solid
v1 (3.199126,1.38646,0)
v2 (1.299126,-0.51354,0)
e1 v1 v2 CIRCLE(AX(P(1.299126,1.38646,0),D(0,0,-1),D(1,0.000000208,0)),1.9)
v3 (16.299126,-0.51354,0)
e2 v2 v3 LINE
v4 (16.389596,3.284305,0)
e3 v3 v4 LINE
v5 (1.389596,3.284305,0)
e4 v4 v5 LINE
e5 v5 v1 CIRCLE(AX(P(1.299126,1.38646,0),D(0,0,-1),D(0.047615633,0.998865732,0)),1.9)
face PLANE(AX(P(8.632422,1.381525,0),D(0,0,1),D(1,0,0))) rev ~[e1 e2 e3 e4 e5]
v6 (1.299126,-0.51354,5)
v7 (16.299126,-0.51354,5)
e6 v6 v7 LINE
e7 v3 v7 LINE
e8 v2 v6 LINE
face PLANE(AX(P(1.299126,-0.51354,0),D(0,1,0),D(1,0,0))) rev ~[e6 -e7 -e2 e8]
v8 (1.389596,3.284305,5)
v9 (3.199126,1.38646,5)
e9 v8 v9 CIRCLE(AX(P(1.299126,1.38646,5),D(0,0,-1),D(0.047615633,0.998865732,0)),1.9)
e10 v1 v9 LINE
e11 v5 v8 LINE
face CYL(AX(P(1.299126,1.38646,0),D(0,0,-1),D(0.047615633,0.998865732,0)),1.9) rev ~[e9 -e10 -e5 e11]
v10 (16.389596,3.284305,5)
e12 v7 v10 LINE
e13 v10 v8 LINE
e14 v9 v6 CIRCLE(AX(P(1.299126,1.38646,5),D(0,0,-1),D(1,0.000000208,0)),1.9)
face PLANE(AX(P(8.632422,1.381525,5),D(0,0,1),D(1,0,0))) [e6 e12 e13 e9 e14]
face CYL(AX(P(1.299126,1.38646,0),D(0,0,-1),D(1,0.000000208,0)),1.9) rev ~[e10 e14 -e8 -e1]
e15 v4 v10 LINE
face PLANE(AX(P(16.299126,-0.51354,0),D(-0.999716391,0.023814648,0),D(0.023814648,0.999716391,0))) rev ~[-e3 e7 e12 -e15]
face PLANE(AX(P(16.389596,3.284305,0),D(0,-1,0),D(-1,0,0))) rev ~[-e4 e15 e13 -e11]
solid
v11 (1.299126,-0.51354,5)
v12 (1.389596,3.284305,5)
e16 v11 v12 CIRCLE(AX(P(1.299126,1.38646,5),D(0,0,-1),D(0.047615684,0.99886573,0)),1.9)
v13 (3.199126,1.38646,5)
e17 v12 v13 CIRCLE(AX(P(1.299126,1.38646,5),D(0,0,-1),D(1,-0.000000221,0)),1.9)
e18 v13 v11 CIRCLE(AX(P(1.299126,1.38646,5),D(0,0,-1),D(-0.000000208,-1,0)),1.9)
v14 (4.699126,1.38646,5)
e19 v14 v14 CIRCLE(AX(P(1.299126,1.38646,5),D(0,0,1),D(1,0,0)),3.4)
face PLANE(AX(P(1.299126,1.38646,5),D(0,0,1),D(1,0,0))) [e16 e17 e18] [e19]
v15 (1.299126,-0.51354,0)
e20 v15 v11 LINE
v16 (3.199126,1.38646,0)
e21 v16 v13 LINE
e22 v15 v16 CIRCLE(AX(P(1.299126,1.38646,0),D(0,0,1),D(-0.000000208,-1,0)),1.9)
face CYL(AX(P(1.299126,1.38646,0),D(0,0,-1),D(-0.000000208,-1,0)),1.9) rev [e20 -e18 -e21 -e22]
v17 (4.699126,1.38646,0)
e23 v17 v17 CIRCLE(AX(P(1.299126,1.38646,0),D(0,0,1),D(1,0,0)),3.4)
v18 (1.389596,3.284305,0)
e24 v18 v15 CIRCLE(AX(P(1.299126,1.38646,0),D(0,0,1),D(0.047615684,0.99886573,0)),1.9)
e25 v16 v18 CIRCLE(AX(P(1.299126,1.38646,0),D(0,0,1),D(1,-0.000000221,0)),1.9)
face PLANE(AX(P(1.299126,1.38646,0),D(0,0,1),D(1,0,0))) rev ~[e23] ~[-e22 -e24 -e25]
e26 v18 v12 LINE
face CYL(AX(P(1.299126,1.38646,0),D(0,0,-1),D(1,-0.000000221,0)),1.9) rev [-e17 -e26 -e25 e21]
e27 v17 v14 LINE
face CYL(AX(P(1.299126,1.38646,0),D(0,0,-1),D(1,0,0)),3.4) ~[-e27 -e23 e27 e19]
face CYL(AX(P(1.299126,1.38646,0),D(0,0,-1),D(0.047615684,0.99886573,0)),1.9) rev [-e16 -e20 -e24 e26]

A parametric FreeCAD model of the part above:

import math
import FreeCAD as App
import Part
import Sketcher

V = App.Vector

doc = App.newDocument("Part")
body = doc.addObject("PartDesign::Body", "Body")

sketch1 = body.newObject("Sketcher::SketchObject", "Sketch")
sketch1.AttachmentSupport = (doc.getObject("XY_Plane"), [""])
sketch1.MapMode = "FlatFace"
sketch1.addGeometry(Part.Circle(V(1.3, 1.4, 0), V(0, 0, 1), 3.4), False)
sketch1.addConstraint(Sketcher.Constraint("Diameter", 0, 6.8))
sketch1.addConstraint(Sketcher.Constraint("DistanceY", -1, 1, 0, 3, 1.38646))
sketch1.addConstraint(Sketcher.Constraint("DistanceX", -1, 1, 0, 3, 1.299126))
pad1 = body.newObject("PartDesign::Pad", "Pad")
pad1.Profile = sketch1
pad1.Length = 5

sketch2 = body.newObject("Sketcher::SketchObject", "Sketch001")
sketch2.AttachmentSupport = (doc.getObject("XY_Plane"), [""])
sketch2.MapMode = "FlatFace"
sketch2.addGeometry(Part.ArcOfCircle(Part.Circle(V(1.3, 1.4, 0), V(0, 0, 1), 1.9), math.radians(-90), math.radians(0)), False)
sketch2.addGeometry(Part.ArcOfCircle(Part.Circle(V(1.3, 1.4, 0), V(0, 0, 1), 1.9), math.radians(0), math.radians(87)), False)
sketch2.addGeometry(Part.ArcOfCircle(Part.Circle(V(1.3, 1.4, 0), V(0, 0, 1), 1.9), math.radians(87), math.radians(270)), False)
sketch2.addConstraint(Sketcher.Constraint("Tangent", 0, 2, 1, 1))
sketch2.addConstraint(Sketcher.Constraint("Tangent", 1, 2, 2, 1))
sketch2.addConstraint(Sketcher.Constraint("Tangent", 2, 2, 0, 1))
sketch2.addConstraint(Sketcher.Constraint("Horizontal", 2, 3, 0, 2))
sketch2.addConstraint(Sketcher.Constraint("Vertical", 1, 3, 2, 2))
sketch2.addConstraint(Sketcher.Constraint("Radius", 0, 1.9))
sketch2.addConstraint(Sketcher.Constraint("DistanceY", -1, 1, 0, 3, 1.38646))
sketch2.addConstraint(Sketcher.Constraint("DistanceX", 1, 3, 1, 2, 0.09047))
sketch2.addConstraint(Sketcher.Constraint("DistanceX", -1, 1, 0, 3, 1.299126))
pocket1 = body.newObject("PartDesign::Pocket", "Pocket")
pocket1.Profile = sketch2
pocket1.Length = 25
pocket1.Reversed = True
body2 = doc.addObject("PartDesign::Body", "Body001")

sketch3 = body2.newObject("Sketcher::SketchObject", "Sketch002")
sketch3.AttachmentSupport = (doc.getObject("XY_Plane001"), [""])
sketch3.MapMode = "FlatFace"
sketch3.addGeometry(Part.ArcOfCircle(Part.Circle(V(1.3, 1.4, 0), V(0, 0, 1), 1.9), math.radians(0), math.radians(87)), False)
sketch3.addGeometry(Part.ArcOfCircle(Part.Circle(V(1.3, 1.4, 0), V(0, 0, 1), 1.9), math.radians(-90), math.radians(0)), False)
sketch3.addGeometry(Part.LineSegment(V(1.3, -0.5, 0), V(16.3, -0.5, 0)), False)
sketch3.addGeometry(Part.LineSegment(V(16.3, -0.5, 0), V(16.4, 3.3, 0)), False)
sketch3.addGeometry(Part.LineSegment(V(16.4, 3.3, 0), V(1.4, 3.3, 0)), False)
sketch3.addConstraint(Sketcher.Constraint("Tangent", 0, 1, 1, 2))
sketch3.addConstraint(Sketcher.Constraint("Tangent", 1, 1, 2, 1))
sketch3.addConstraint(Sketcher.Constraint("Coincident", 2, 2, 3, 1))
sketch3.addConstraint(Sketcher.Constraint("Coincident", 3, 2, 4, 1))
sketch3.addConstraint(Sketcher.Constraint("Coincident", 4, 2, 0, 2))
sketch3.addConstraint(Sketcher.Constraint("Horizontal", 2))
sketch3.addConstraint(Sketcher.Constraint("Horizontal", 4))
sketch3.addConstraint(Sketcher.Constraint("Equal", 0, 1))
sketch3.addConstraint(Sketcher.Constraint("Horizontal", 1, 3, 0, 1))
sketch3.addConstraint(Sketcher.Constraint("Equal", 2, 4))
sketch3.addConstraint(Sketcher.Constraint("Radius", 0, 1.9))
sketch3.addConstraint(Sketcher.Constraint("DistanceX", 2, 1, 2, 2, 15.0))
sketch3.addConstraint(Sketcher.Constraint("DistanceY", -1, 1, 0, 3, 1.38646))
sketch3.addConstraint(Sketcher.Constraint("DistanceX", 2, 2, 3, 2, 0.09047))
sketch3.addConstraint(Sketcher.Constraint("DistanceX", -1, 1, 0, 3, 1.299126))
pad2 = body2.newObject("PartDesign::Pad", "Pad001")
pad2.Profile = sketch3
pad2.Length = 5

doc.recompute()
